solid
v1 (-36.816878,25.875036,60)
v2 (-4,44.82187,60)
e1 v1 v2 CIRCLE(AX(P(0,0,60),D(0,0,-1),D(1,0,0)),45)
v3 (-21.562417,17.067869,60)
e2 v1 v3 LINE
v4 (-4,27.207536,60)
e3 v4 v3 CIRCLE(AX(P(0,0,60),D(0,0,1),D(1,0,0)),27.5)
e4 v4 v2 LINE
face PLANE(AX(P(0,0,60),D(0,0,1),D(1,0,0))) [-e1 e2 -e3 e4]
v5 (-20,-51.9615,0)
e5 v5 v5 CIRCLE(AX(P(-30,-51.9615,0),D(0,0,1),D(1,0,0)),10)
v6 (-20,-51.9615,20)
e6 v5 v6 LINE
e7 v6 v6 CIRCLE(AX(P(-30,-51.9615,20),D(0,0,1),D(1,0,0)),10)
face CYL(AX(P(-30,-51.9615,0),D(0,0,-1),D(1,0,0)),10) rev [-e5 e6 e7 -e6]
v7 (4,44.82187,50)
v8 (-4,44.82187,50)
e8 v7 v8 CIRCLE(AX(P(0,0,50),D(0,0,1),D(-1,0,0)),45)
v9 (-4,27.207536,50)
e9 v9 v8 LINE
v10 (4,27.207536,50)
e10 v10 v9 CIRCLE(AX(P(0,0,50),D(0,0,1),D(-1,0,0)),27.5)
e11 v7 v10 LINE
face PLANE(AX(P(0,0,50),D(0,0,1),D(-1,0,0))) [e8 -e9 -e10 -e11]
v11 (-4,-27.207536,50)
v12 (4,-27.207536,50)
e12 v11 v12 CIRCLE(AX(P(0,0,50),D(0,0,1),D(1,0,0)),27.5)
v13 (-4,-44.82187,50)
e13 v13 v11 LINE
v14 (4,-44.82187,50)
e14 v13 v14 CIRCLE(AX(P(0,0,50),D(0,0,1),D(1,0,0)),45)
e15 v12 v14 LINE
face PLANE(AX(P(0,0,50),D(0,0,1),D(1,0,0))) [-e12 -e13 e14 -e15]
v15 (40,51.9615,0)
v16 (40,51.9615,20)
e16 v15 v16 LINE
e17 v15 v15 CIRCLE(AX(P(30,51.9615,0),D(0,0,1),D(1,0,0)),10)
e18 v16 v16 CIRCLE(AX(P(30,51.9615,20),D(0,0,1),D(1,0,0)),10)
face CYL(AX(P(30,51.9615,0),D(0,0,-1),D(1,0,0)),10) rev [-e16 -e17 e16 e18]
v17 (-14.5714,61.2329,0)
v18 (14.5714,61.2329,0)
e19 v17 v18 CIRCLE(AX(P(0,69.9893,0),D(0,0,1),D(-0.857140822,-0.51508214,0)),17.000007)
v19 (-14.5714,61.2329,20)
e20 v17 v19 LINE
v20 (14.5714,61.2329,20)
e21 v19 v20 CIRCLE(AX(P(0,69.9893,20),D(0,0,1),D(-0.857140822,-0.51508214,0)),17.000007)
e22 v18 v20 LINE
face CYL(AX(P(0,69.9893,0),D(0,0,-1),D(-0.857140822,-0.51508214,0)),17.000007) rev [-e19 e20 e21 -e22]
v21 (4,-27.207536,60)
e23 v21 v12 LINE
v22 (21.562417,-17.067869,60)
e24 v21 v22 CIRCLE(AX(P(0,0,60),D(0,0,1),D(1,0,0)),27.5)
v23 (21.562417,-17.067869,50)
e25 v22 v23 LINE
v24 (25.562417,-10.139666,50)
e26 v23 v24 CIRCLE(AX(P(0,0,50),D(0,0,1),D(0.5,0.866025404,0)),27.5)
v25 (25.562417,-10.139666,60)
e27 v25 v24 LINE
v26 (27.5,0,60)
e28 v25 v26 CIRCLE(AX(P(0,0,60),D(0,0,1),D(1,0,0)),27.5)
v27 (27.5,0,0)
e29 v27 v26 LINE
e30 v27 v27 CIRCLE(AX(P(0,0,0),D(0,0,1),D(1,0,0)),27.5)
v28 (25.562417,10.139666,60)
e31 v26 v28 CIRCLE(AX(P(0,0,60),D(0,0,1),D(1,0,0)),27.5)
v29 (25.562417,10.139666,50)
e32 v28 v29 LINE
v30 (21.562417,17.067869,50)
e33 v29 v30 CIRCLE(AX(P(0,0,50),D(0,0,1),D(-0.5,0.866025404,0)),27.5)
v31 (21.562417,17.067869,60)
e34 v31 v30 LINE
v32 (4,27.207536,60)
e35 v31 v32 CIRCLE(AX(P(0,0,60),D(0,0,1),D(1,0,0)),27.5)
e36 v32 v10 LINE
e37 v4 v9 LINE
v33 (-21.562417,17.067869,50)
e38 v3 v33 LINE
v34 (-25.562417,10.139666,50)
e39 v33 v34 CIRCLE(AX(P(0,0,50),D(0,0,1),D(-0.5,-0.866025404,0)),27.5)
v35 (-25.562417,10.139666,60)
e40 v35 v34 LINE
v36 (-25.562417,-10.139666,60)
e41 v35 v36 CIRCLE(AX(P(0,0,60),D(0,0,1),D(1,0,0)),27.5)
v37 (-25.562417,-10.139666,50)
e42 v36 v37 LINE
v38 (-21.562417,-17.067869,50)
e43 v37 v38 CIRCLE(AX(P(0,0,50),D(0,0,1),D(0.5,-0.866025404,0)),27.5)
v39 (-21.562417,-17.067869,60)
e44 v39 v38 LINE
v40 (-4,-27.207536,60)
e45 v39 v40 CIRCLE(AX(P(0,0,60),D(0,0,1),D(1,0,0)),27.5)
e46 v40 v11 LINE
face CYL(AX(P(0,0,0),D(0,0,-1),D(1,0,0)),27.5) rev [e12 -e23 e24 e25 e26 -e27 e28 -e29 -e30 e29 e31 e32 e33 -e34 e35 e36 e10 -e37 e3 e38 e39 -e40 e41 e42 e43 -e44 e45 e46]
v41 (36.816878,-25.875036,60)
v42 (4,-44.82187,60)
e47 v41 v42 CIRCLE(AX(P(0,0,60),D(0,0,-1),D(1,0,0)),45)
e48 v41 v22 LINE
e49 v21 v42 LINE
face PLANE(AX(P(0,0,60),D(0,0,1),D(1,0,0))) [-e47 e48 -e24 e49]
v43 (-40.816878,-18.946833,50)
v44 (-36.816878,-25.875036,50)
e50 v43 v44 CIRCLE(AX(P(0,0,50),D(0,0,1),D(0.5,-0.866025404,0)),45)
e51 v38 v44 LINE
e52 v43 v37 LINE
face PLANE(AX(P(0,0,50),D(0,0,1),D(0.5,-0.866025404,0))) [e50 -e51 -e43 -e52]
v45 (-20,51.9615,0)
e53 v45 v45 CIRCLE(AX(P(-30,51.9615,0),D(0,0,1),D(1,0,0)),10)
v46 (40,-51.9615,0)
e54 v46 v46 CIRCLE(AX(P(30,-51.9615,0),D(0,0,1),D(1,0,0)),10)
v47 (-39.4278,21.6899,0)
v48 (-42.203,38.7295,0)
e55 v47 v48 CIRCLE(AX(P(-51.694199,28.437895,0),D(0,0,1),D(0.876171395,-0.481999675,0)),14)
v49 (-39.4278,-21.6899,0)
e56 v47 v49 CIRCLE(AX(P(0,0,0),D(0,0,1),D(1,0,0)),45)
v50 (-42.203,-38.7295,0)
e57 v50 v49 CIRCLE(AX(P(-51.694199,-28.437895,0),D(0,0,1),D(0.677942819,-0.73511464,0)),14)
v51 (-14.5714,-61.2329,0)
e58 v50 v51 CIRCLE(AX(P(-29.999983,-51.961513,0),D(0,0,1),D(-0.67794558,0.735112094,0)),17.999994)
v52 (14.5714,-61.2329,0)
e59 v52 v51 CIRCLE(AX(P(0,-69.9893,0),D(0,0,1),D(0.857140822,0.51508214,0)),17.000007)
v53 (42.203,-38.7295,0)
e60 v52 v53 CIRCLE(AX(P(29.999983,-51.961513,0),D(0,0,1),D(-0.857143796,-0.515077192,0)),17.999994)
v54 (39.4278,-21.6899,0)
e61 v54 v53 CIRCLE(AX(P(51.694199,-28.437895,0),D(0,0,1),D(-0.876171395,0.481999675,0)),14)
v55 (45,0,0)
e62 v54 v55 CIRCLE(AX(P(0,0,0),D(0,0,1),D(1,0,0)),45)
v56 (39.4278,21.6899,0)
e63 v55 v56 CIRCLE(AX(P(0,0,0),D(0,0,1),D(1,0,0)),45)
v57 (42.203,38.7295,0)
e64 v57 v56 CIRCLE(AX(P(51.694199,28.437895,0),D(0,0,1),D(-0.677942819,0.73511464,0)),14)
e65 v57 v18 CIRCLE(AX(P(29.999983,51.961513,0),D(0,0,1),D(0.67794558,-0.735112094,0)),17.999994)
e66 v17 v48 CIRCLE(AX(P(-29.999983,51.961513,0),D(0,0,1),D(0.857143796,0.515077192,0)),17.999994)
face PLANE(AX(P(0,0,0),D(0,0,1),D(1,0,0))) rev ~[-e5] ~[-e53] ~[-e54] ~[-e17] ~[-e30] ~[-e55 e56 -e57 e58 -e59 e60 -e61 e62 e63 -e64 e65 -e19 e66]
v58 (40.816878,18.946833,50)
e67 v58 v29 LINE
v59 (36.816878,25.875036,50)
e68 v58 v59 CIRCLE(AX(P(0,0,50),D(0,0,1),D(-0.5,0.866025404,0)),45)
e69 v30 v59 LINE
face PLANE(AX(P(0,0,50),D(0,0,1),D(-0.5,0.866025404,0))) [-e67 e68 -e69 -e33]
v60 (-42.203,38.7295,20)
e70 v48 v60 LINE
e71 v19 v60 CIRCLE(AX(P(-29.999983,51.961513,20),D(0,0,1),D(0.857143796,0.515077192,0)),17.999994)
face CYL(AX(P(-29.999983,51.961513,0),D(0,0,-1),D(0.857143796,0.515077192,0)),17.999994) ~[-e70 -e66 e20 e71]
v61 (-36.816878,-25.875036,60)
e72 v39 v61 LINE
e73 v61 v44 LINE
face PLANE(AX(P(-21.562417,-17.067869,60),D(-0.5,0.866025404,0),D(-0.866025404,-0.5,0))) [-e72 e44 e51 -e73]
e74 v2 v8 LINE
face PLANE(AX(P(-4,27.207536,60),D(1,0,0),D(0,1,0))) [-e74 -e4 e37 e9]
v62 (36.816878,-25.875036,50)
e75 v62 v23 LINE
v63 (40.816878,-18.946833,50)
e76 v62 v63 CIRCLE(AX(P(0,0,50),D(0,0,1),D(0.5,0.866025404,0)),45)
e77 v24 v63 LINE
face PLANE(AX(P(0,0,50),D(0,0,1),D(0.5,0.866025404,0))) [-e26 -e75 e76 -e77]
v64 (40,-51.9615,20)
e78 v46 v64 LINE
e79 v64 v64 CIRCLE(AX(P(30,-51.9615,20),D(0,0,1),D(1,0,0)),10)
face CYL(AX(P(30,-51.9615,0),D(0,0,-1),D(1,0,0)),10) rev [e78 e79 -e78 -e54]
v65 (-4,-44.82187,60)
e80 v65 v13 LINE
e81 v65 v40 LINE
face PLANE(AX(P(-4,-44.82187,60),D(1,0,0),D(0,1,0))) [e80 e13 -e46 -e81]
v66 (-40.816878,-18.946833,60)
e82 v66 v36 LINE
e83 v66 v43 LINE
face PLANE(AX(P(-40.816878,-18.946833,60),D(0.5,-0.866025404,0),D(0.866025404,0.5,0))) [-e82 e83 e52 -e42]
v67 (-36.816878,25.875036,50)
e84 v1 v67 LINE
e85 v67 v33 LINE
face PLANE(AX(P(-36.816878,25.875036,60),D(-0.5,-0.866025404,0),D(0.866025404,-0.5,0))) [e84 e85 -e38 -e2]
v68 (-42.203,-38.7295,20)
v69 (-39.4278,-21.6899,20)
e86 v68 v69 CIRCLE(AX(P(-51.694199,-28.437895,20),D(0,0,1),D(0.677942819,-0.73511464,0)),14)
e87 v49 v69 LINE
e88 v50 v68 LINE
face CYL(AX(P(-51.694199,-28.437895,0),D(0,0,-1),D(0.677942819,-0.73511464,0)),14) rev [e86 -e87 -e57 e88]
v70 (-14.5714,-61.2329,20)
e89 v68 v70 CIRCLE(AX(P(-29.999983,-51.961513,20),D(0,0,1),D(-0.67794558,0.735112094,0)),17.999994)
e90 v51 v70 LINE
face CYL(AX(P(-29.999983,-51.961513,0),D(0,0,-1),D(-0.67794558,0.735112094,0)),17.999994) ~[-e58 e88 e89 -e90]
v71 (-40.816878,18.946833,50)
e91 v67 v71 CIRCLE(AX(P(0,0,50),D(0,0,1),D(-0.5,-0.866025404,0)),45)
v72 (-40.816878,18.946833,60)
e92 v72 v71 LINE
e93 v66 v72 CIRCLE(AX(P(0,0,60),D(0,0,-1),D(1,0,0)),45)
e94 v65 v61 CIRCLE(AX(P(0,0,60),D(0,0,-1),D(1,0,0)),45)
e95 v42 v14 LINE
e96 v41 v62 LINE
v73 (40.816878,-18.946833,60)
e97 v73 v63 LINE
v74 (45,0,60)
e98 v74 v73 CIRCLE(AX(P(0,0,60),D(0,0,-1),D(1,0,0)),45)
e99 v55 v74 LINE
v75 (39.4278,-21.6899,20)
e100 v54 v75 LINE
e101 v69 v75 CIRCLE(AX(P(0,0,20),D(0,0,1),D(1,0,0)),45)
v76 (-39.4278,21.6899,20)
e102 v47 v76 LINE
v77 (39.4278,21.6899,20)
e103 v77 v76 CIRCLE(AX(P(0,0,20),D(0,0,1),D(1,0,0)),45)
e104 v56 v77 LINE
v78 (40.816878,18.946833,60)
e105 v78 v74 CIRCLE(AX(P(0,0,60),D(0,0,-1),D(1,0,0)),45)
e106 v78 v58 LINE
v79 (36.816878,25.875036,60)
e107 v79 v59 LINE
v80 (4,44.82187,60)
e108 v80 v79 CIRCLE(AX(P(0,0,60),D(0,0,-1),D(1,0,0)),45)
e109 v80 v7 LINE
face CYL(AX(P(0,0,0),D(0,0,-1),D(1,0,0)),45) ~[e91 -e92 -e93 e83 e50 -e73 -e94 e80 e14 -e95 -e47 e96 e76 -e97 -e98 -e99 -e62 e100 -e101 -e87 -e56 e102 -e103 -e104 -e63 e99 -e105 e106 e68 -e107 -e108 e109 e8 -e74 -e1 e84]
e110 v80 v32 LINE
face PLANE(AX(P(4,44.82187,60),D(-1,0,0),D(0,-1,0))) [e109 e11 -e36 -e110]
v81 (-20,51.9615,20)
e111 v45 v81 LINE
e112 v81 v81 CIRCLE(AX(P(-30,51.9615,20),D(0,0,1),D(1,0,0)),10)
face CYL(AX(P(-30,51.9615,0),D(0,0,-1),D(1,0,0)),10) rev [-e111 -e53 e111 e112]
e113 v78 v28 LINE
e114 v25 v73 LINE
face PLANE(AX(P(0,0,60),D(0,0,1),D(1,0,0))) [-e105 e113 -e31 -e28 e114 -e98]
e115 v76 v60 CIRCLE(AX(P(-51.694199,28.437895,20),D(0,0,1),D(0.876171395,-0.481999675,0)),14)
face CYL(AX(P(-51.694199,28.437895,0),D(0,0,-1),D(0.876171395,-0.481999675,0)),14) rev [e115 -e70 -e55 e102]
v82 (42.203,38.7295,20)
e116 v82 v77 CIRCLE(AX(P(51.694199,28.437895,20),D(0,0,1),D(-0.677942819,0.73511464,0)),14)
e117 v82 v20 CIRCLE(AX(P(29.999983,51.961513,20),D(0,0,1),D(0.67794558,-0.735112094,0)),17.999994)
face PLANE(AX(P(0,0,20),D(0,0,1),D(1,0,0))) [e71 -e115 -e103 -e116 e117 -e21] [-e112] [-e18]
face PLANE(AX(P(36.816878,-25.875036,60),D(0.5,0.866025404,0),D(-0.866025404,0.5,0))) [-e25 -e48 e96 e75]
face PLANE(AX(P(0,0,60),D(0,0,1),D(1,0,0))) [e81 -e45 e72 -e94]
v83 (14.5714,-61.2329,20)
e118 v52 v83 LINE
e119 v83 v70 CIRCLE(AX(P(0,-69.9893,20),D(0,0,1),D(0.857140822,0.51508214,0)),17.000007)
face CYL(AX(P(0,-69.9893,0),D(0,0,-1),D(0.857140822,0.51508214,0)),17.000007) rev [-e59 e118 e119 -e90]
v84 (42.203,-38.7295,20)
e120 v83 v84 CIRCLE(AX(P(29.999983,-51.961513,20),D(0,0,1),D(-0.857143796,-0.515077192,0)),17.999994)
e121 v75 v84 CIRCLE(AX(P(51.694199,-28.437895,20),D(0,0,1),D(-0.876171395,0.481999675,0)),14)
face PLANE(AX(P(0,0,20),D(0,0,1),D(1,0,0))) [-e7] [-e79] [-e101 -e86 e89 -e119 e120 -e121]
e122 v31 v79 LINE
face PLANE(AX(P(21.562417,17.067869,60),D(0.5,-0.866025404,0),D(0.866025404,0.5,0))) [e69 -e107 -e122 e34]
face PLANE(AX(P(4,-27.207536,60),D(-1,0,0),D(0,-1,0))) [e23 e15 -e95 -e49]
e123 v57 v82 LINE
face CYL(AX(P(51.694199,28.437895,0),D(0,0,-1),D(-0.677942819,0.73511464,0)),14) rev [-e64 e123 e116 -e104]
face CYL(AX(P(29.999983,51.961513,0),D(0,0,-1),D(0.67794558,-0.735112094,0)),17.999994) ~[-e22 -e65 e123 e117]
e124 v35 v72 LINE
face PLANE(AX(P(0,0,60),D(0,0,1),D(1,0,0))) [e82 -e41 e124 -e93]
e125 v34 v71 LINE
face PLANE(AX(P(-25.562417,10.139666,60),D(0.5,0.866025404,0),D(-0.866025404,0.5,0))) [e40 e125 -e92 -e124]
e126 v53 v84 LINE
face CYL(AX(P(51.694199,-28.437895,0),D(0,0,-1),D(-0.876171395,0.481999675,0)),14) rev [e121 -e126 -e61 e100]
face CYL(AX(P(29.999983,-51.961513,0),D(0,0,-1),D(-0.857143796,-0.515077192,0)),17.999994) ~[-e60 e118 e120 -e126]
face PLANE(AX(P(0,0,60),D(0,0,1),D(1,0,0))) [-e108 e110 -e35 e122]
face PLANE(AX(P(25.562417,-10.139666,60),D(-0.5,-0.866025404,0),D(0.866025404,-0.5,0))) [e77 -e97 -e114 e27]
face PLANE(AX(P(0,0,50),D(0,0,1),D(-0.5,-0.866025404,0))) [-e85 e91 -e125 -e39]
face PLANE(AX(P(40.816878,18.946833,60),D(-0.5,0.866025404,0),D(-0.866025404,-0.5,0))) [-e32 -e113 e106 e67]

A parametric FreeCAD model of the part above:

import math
import FreeCAD as App
import Part
import Sketcher
Q = App.Units.Quantity

doc = App.newDocument("Part")
body = doc.addObject("PartDesign::Body", "Body")
body.AllowCompound = True

sketch1 = body.newObject("Sketcher::SketchObject", "Sketch")
sketch1.AttachmentSupport = (doc.getObject("XY_Plane"), [""])
sketch1.MapMode = "FlatFace"
sketch1.addGeometry([
    Part.ArcOfCircle(Part.Circle(App.Vector(0, 0, 0), App.Vector(0, 0, 1), 45), math.radians(29), math.radians(151)),
    Part.ArcOfCircle(Part.Circle(App.Vector(52, 28, 0), App.Vector(0, 0, 1), 14), math.radians(133), math.radians(209)),
    Part.ArcOfCircle(Part.Circle(App.Vector(30, 52, 0), App.Vector(0, 0, 1), 18), math.radians(-47), math.radians(149)),
    Part.ArcOfCircle(Part.Circle(App.Vector(0, 70, 0), App.Vector(0, 0, 1), 17), math.radians(-149), math.radians(-31)),
    Part.ArcOfCircle(Part.Circle(App.Vector(-30, 52, 0), App.Vector(0, 0, 1), 18), math.radians(31), math.radians(227)),
    Part.ArcOfCircle(Part.Circle(App.Vector(-52, 28, 0), App.Vector(0, 0, 1), 14), math.radians(-29), math.radians(47)),
    Part.Circle(App.Vector(-30, 52, 0), App.Vector(0, 0, 1), 10),
    Part.Circle(App.Vector(30, 52, 0), App.Vector(0, 0, 1), 10),
    Part.ArcOfCircle(Part.Circle(App.Vector(52, -28, 0), App.Vector(0, 0, 1), 14), math.radians(151), math.radians(227)),
    Part.ArcOfCircle(Part.Circle(App.Vector(0, 0, 0), App.Vector(0, 0, 1), 45), math.radians(-151), math.radians(-29)),
    Part.ArcOfCircle(Part.Circle(App.Vector(-52, -28, 0), App.Vector(0, 0, 1), 14), math.radians(-47), math.radians(29)),
    Part.ArcOfCircle(Part.Circle(App.Vector(-30, -52, 0), App.Vector(0, 0, 1), 18), math.radians(133), math.radians(329)),
    Part.ArcOfCircle(Part.Circle(App.Vector(0, -70, 0), App.Vector(0, 0, 1), 17), math.radians(31), math.radians(149)),
    Part.ArcOfCircle(Part.Circle(App.Vector(30, -52, 0), App.Vector(0, 0, 1), 18), math.radians(-149), math.radians(47)),
    Part.Circle(App.Vector(-30, -52, 0), App.Vector(0, 0, 1), 10),
    Part.Circle(App.Vector(30, -52, 0), App.Vector(0, 0, 1), 10),
], False)
sketch1.addConstraint([
    Sketcher.Constraint("Tangent", 0, 1, 1, 2),
    Sketcher.Constraint("Tangent", 1, 1, 2, 1),
    Sketcher.Constraint("Tangent", 2, 2, 3, 2),
    Sketcher.Constraint("Tangent", 3, 1, 4, 1),
    Sketcher.Constraint("Tangent", 4, 2, 5, 2),
    Sketcher.Constraint("Tangent", 5, 1, 0, 2),
    Sketcher.Constraint("Tangent", 8, 1, 9, 2),
    Sketcher.Constraint("Tangent", 9, 1, 10, 2),
    Sketcher.Constraint("Tangent", 10, 1, 11, 1),
    Sketcher.Constraint("Tangent", 11, 2, 12, 2),
    Sketcher.Constraint("Tangent", 12, 1, 13, 1),
    Sketcher.Constraint("Tangent", 13, 2, 8, 2),
    Sketcher.Constraint("Coincident", 0, 3, -1, 1),
    Sketcher.Constraint("Coincident", 9, 3, -1, 1),
    Sketcher.Constraint("Coincident", 6, 3, 4, 3),
    Sketcher.Constraint("Coincident", 7, 3, 2, 3),
    Sketcher.Constraint("Coincident", 14, 3, 11, 3),
    Sketcher.Constraint("Coincident", 15, 3, 13, 3),
    Sketcher.Constraint("Equal", 2, 4),
    Sketcher.Constraint("Equal", 1, 5),
    Sketcher.Constraint("Equal", 6, 7),
    Sketcher.Constraint("Equal", 5, 8),
    Sketcher.Constraint("Equal", 0, 9),
    Sketcher.Constraint("Equal", 8, 10),
    Sketcher.Constraint("Equal", 4, 11),
    Sketcher.Constraint("Equal", 3, 12),
    Sketcher.Constraint("Equal", 11, 13),
    Sketcher.Constraint("Equal", 7, 14),
    Sketcher.Constraint("Equal", 14, 15),
    Sketcher.Constraint("Symmetric", 2, 3, 11, 3, -1, 1),
    Sketcher.Constraint("Symmetric", 4, 3, 13, 3, -1, 1),
    Sketcher.Constraint("Symmetric", 2, 3, 4, 3, -2),
    Sketcher.Constraint("Diameter", 6, Q("20 mm")),
    Sketcher.Constraint("Radius", 0, Q("45 mm")),
    Sketcher.Constraint("Radius", 1, Q("14 mm")),
    Sketcher.Constraint("Radius", 2, Q("18 mm")),
    Sketcher.Constraint("Radius", 3, Q("17 mm")),
    Sketcher.Constraint("DistanceX", -1, 1, 2, 3, Q("30 mm")),
    Sketcher.Constraint("DistanceY", -1, 1, 0, 1, Q("21.69 mm")),
])
pad1 = body.newObject("PartDesign::Pad", "Pad")
pad1.Profile = sketch1
pad1.Length = 20

sketch2 = body.newObject("Sketcher::SketchObject", "Sketch001")
sketch2.AttachmentSupport = (doc.getObject("XY_Plane"), [""])
sketch2.MapMode = "FlatFace"
sketch2.addGeometry([
    Part.Circle(App.Vector(0, 0, 0), App.Vector(0, 0, 1), 45),
    Part.Circle(App.Vector(0, 0, 0), App.Vector(0, 0, 1), 28),
], False)
sketch2.addConstraint([
    Sketcher.Constraint("Coincident", 0, 3, -1, 1),
    Sketcher.Constraint("Coincident", 1, 3, -1, 1),
    Sketcher.Constraint("Diameter", 0, Q("90 mm")),
    Sketcher.Constraint("Diameter", 1, Q("55 mm")),
])
pad2 = body.newObject("PartDesign::Pad", "Pad001")
pad2.Profile = sketch2
pad2.Length = 60

sketch3 = body.newObject("Sketcher::SketchObject", "Sketch002")
sketch3.AttachmentSupport = (doc.getObject("XY_Plane"), [""])
sketch3.MapMode = "FlatFace"
sketch3.AttachmentOffset = App.Placement(App.Vector(0, 0, 60), App.Rotation())
sketch3.addGeometry([
    Part.ArcOfCircle(Part.Circle(App.Vector(0, 0, 0), App.Vector(0, 0, 1), 28), math.radians(81.64), math.radians(98.36)),
    Part.LineSegment(App.Vector(4, 27, 0), App.Vector(4, 45, 0)),
    Part.ArcOfCircle(Part.Circle(App.Vector(0, 0, 0), App.Vector(0, 0, 1), 45), math.radians(84.9), math.radians(95.1)),
    Part.LineSegment(App.Vector(-4, 45, 0), App.Vector(-4, 27, 0)),
], False)
sketch3.addConstraint([
    Sketcher.Constraint("Coincident", 0, 1, 1, 1),
    Sketcher.Constraint("Coincident", 1, 2, 2, 1),
    Sketcher.Constraint("Coincident", 2, 2, 3, 1),
    Sketcher.Constraint("Coincident", 3, 2, 0, 2),
    Sketcher.Constraint("Vertical", 1),
    Sketcher.Constraint("Vertical", 3),
    Sketcher.Constraint("Coincident", 0, 3, -1, 1),
    Sketcher.Constraint("Coincident", 2, 3, -1, 1),
    Sketcher.Constraint("Horizontal", 1, 2, 2, 2),
    Sketcher.Constraint("Radius", 2, Q("45 mm")),
    Sketcher.Constraint("DistanceX", 2, 2, 1, 2, Q("8 mm")),
    Sketcher.Constraint("Radius", 0, Q("27.5 mm")),
])
pocket1 = body.newObject("PartDesign::Pocket", "Pocket")
pocket1.Profile = sketch3
pocket1.Length = 10
doc.recompute()

polarpattern = body.newObject("PartDesign::PolarPattern", "PolarPattern")
polarpattern.Originals = [pocket1]
polarpattern.Axis = (doc.getObject("Z_Axis"), [""])
polarpattern.Angle = 360
polarpattern.Occurrences = 6
body.Tip = polarpattern

doc.recompute()
